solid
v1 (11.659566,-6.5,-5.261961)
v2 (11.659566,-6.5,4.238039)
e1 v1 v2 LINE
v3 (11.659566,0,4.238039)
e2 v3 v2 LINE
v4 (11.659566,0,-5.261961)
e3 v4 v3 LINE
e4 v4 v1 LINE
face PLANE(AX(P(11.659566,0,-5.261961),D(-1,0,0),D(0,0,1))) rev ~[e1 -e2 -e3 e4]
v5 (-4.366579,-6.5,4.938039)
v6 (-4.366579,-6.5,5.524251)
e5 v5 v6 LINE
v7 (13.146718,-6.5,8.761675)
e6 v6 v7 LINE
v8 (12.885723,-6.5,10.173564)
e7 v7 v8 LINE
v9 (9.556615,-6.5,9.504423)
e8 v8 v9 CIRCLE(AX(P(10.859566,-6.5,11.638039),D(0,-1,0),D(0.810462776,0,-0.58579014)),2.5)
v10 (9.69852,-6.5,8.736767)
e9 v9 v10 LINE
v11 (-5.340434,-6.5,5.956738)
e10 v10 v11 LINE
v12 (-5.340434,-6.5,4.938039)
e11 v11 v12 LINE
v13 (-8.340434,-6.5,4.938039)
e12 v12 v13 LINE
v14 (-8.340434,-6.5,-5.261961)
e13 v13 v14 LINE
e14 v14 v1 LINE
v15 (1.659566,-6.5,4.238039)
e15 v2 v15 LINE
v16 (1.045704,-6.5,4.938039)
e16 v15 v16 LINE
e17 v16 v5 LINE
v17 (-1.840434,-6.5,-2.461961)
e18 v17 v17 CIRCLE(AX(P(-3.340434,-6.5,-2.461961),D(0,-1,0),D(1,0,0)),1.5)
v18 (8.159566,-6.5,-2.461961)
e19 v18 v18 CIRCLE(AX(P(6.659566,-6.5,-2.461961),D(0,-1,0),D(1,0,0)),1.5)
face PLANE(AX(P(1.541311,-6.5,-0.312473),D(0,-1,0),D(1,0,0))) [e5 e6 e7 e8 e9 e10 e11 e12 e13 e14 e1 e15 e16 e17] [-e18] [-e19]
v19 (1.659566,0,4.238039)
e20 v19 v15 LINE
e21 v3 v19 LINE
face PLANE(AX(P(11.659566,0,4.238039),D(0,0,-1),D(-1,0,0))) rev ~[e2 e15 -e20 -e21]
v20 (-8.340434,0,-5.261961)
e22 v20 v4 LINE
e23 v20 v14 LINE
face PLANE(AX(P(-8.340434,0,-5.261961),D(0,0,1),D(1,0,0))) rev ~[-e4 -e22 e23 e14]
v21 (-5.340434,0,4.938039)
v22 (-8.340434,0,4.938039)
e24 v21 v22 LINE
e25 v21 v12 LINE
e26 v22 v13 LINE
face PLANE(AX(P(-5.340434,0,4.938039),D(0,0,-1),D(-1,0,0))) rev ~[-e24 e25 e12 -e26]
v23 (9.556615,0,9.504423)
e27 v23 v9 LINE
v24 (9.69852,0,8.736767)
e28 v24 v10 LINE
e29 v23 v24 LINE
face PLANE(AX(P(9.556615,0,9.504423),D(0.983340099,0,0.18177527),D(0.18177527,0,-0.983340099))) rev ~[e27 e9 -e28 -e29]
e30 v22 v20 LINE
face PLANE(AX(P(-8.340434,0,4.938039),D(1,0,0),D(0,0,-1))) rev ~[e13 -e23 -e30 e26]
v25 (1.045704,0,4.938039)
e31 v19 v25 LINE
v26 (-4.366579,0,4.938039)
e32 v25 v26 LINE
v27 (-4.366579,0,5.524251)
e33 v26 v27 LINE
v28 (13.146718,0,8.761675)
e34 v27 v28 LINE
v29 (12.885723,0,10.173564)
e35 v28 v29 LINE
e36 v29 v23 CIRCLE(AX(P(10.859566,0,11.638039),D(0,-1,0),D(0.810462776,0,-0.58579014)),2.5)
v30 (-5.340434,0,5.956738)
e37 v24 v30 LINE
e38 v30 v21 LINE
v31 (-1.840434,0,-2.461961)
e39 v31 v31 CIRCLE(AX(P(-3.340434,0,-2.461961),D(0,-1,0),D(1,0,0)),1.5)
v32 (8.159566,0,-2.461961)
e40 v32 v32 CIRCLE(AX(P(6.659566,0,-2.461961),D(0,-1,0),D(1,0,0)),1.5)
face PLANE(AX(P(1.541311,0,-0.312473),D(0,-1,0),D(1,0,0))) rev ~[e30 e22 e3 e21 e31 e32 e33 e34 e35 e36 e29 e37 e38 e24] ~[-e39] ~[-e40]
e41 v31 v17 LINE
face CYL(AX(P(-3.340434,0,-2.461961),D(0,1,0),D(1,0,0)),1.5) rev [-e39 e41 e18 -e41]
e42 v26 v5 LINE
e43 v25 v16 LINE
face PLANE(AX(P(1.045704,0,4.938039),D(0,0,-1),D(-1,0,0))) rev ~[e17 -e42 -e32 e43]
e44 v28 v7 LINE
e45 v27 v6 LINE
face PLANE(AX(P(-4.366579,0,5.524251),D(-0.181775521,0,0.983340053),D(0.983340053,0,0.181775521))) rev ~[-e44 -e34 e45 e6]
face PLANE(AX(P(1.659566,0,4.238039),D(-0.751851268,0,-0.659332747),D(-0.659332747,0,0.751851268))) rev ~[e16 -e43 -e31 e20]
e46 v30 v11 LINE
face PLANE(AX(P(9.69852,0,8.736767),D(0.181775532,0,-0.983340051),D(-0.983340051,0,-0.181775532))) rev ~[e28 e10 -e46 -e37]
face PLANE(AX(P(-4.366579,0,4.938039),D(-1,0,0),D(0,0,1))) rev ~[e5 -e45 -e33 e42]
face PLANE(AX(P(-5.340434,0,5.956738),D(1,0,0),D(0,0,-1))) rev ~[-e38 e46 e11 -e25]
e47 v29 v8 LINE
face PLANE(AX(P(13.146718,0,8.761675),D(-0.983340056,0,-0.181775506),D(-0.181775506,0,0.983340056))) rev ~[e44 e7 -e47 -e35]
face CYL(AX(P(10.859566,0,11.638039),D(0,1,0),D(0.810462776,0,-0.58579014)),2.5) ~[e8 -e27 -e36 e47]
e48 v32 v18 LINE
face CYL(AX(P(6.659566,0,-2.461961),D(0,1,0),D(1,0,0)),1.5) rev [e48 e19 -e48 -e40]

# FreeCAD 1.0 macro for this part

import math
import FreeCAD as App
import Part
import Sketcher

V = App.Vector
Q = App.Units.Quantity

doc = App.newDocument("Part")
params = doc.addObject("Spreadsheet::Sheet", "Params")
for row, (alias, value) in enumerate([
    ("sketch1_diameter", "3 mm"),
    ("sketch1_radius", "2.5 mm"),
    ("sketch1_width", "20 mm"),
    ("sketch1_width2", "10 mm"),
    ("sketch1_width3", "3 mm"),
    ("pad1_length", "6.5 mm"),
], start=1):
    params.set(f"A{row}", alias)
    params.set(f"B{row}", "=" + value)
    params.setAlias(f"B{row}", alias)

body = doc.addObject("PartDesign::Body", "Body")

sketch1 = body.newObject("Sketcher::SketchObject", "Sketch")
sketch1.AttachmentSupport = (doc.getObject("XZ_Plane"), [""])
sketch1.MapMode = "FlatFace"
sketch1.addGeometry([
    Part.LineSegment(V(-8.3, 4.9, 0), V(-8.3, -5.3, 0)),
    Part.LineSegment(V(-8.3, -5.3, 0), V(11.7, -5.3, 0)),
    Part.LineSegment(V(11.7, -5.3, 0), V(11.7, 4.2, 0)),
    Part.LineSegment(V(11.7, 4.2, 0), V(1.7, 4.2, 0)),
    Part.LineSegment(V(1.7, 4.2, 0), V(1, 4.9, 0)),
    Part.LineSegment(V(1, 4.9, 0), V(-4.4, 4.9, 0)),
    Part.LineSegment(V(-4.4, 4.9, 0), V(-4.4, 5.5, 0)),
    Part.LineSegment(V(-4.4, 5.5, 0), V(13.1, 8.8, 0)),
    Part.LineSegment(V(13.1, 8.8, 0), V(12.9, 10.2, 0)),
    Part.ArcOfCircle(Part.Circle(V(10.9, 11.6, 0), V(0, 0, 1), 2.5), math.radians(-36), math.radians(239)),
    Part.LineSegment(V(9.6, 9.5, 0), V(9.7, 8.7, 0)),
    Part.LineSegment(V(9.7, 8.7, 0), V(-5.3, 6, 0)),
    Part.LineSegment(V(-5.3, 6, 0), V(-5.3, 4.9, 0)),
    Part.LineSegment(V(-5.3, 4.9, 0), V(-8.3, 4.9, 0)),
    Part.Circle(V(-3.3, -2.5, 0), V(0, 0, 1), 1.5),
    Part.Circle(V(6.7, -2.5, 0), V(0, 0, 1), 1.5),
], False)
sketch1.addConstraint([
    Sketcher.Constraint("Coincident", 0, 2, 1, 1),
    Sketcher.Constraint("Coincident", 1, 2, 2, 1),
    Sketcher.Constraint("Coincident", 2, 2, 3, 1),
    Sketcher.Constraint("Coincident", 3, 2, 4, 1),
    Sketcher.Constraint("Coincident", 4, 2, 5, 1),
    Sketcher.Constraint("Coincident", 5, 2, 6, 1),
    Sketcher.Constraint("Coincident", 6, 2, 7, 1),
    Sketcher.Constraint("Coincident", 7, 2, 8, 1),
    Sketcher.Constraint("Coincident", 8, 2, 9, 1),
    Sketcher.Constraint("Coincident", 9, 2, 10, 1),
    Sketcher.Constraint("Coincident", 10, 2, 11, 1),
    Sketcher.Constraint("Coincident", 11, 2, 12, 1),
    Sketcher.Constraint("Coincident", 12, 2, 13, 1),
    Sketcher.Constraint("Coincident", 13, 2, 0, 1),
    Sketcher.Constraint("Vertical", 0),
    Sketcher.Constraint("Horizontal", 1),
    Sketcher.Constraint("Vertical", 2),
    Sketcher.Constraint("Horizontal", 3),
    Sketcher.Constraint("Horizontal", 5),
    Sketcher.Constraint("Vertical", 6),
    Sketcher.Constraint("Vertical", 12),
    Sketcher.Constraint("Horizontal", 13),
    Sketcher.Constraint("Equal", 14, 15),
    Sketcher.Constraint("Perpendicular", 7, 8),
    Sketcher.Constraint("Parallel", 8, 10),
    Sketcher.Constraint("Perpendicular", 10, 11),
    Sketcher.Constraint("Horizontal", 14, 3, 15, 3),
    Sketcher.Constraint("Horizontal", 5, 2, 12, 2),
    Sketcher.Constraint("Diameter", 14, Q("3 mm")),
    Sketcher.Constraint("Radius", 9, Q("2.5 mm")),
    Sketcher.Constraint("DistanceX", 1, 1, 1, 2, Q("20 mm")),
    Sketcher.Constraint("DistanceX", 3, 2, 3, 1, Q("10 mm")),
    Sketcher.Constraint("DistanceX", 13, 2, 13, 1, Q("3 mm")),
    Sketcher.Constraint("DistanceY", 0, 2, 0, 1, Q("10.2 mm")),
    Sketcher.Constraint("DistanceY", 2, 1, 2, 2, Q("9.5 mm")),
    Sketcher.Constraint("DistanceX", 14, 3, 15, 3, Q("10 mm")),
    Sketcher.Constraint("DistanceX", 0, 2, 14, 3, Q("5 mm")),
    Sketcher.Constraint("DistanceX", 14, 3, 9, 3, Q("14.2 mm")),
    Sketcher.Constraint("DistanceY", 14, 3, 9, 3, Q("14.1 mm")),
    Sketcher.Constraint("DistanceY", 0, 2, 14, 3, Q("2.8 mm")),
    Sketcher.Constraint("DistanceY", 12, 2, 12, 1, Q("1.018699 mm")),
    Sketcher.Constraint("DistanceY", 6, 1, 6, 2, Q("0.586212 mm")),
    Sketcher.Constraint("Distance", 7, Q("17.810011 mm")),
    Sketcher.Constraint("Distance", 8, Q("1.43581 mm")),
    Sketcher.Constraint("Distance", 10, Q("0.780662 mm")),
    Sketcher.Constraint("DistanceX", 5, 2, 5, 1, Q("5.412283 mm")),
    Sketcher.Constraint("DistanceY", -1, 1, 9, 3, Q("11.638039 mm")),
    Sketcher.Constraint("DistanceX", 5, 2, -1, 1, Q("4.366579 mm")),
    Sketcher.Constraint("DistanceX", -1, 1, 10, 2, Q("9.69852 mm")),
])
sketch1.setExpression("Constraints[28]", "Params.sketch1_diameter")
sketch1.setExpression("Constraints[29]", "Params.sketch1_radius")
sketch1.setExpression("Constraints[30]", "Params.sketch1_width")
sketch1.setExpression("Constraints[31]", "Params.sketch1_width2")
sketch1.setExpression("Constraints[32]", "Params.sketch1_width3")
pad1 = body.newObject("PartDesign::Pad", "Pad")
pad1.Profile = sketch1
pad1.setExpression("Length", "Params.pad1_length")

doc.recompute()
